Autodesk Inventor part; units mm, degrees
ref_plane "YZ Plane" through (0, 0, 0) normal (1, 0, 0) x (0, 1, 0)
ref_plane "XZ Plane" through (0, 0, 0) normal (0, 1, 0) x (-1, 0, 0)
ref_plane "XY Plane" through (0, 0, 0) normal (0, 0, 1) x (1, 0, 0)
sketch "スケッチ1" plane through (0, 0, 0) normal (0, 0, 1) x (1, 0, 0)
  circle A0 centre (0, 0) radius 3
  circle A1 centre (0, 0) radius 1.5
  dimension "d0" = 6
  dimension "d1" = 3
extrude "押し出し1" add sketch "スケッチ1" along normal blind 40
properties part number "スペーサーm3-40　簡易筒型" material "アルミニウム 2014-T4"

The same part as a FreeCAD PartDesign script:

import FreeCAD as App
import Part
import Sketcher
from FreeCAD import Vector
Q = App.Units.Quantity

doc = App.newDocument("Part")
params = doc.addObject("Spreadsheet::Sheet", "Params")
for row, (alias, value) in enumerate([
    ("sketch1_diameter", "6 mm"),
    ("sketch1_diameter2", "3 mm"),
    ("pad1_length", "40 mm"),
], start=1):
    params.set(f"A{row}", alias)
    params.set(f"B{row}", "=" + value)
    params.setAlias(f"B{row}", alias)

body = doc.addObject("PartDesign::Body", "Body")

sketch1 = body.newObject("Sketcher::SketchObject", "Sketch")
sketch1.AttachmentSupport = (doc.getObject("XY_Plane"), [""])
sketch1.MapMode = "FlatFace"
sketch1.addGeometry([
    Part.Circle(Vector(0, 0, 0), Vector(0, 0, 1), 3),
    Part.Circle(Vector(0, 0, 0), Vector(0, 0, 1), 1.5),
], False)
sketch1.addConstraint([
    Sketcher.Constraint("Coincident", 0, 3, -1, 1),
    Sketcher.Constraint("Coincident", 1, 3, -1, 1),
    Sketcher.Constraint("Diameter", 0, Q("6 mm")),
    Sketcher.Constraint("Diameter", 1, Q("3 mm")),
])
sketch1.setExpression("Constraints[2]", "Params.sketch1_diameter")
sketch1.setExpression("Constraints[3]", "Params.sketch1_diameter2")
pad1 = body.newObject("PartDesign::Pad", "Pad")
pad1.Profile = sketch1
pad1.setExpression("Length", "Params.pad1_length")

doc.recompute()
